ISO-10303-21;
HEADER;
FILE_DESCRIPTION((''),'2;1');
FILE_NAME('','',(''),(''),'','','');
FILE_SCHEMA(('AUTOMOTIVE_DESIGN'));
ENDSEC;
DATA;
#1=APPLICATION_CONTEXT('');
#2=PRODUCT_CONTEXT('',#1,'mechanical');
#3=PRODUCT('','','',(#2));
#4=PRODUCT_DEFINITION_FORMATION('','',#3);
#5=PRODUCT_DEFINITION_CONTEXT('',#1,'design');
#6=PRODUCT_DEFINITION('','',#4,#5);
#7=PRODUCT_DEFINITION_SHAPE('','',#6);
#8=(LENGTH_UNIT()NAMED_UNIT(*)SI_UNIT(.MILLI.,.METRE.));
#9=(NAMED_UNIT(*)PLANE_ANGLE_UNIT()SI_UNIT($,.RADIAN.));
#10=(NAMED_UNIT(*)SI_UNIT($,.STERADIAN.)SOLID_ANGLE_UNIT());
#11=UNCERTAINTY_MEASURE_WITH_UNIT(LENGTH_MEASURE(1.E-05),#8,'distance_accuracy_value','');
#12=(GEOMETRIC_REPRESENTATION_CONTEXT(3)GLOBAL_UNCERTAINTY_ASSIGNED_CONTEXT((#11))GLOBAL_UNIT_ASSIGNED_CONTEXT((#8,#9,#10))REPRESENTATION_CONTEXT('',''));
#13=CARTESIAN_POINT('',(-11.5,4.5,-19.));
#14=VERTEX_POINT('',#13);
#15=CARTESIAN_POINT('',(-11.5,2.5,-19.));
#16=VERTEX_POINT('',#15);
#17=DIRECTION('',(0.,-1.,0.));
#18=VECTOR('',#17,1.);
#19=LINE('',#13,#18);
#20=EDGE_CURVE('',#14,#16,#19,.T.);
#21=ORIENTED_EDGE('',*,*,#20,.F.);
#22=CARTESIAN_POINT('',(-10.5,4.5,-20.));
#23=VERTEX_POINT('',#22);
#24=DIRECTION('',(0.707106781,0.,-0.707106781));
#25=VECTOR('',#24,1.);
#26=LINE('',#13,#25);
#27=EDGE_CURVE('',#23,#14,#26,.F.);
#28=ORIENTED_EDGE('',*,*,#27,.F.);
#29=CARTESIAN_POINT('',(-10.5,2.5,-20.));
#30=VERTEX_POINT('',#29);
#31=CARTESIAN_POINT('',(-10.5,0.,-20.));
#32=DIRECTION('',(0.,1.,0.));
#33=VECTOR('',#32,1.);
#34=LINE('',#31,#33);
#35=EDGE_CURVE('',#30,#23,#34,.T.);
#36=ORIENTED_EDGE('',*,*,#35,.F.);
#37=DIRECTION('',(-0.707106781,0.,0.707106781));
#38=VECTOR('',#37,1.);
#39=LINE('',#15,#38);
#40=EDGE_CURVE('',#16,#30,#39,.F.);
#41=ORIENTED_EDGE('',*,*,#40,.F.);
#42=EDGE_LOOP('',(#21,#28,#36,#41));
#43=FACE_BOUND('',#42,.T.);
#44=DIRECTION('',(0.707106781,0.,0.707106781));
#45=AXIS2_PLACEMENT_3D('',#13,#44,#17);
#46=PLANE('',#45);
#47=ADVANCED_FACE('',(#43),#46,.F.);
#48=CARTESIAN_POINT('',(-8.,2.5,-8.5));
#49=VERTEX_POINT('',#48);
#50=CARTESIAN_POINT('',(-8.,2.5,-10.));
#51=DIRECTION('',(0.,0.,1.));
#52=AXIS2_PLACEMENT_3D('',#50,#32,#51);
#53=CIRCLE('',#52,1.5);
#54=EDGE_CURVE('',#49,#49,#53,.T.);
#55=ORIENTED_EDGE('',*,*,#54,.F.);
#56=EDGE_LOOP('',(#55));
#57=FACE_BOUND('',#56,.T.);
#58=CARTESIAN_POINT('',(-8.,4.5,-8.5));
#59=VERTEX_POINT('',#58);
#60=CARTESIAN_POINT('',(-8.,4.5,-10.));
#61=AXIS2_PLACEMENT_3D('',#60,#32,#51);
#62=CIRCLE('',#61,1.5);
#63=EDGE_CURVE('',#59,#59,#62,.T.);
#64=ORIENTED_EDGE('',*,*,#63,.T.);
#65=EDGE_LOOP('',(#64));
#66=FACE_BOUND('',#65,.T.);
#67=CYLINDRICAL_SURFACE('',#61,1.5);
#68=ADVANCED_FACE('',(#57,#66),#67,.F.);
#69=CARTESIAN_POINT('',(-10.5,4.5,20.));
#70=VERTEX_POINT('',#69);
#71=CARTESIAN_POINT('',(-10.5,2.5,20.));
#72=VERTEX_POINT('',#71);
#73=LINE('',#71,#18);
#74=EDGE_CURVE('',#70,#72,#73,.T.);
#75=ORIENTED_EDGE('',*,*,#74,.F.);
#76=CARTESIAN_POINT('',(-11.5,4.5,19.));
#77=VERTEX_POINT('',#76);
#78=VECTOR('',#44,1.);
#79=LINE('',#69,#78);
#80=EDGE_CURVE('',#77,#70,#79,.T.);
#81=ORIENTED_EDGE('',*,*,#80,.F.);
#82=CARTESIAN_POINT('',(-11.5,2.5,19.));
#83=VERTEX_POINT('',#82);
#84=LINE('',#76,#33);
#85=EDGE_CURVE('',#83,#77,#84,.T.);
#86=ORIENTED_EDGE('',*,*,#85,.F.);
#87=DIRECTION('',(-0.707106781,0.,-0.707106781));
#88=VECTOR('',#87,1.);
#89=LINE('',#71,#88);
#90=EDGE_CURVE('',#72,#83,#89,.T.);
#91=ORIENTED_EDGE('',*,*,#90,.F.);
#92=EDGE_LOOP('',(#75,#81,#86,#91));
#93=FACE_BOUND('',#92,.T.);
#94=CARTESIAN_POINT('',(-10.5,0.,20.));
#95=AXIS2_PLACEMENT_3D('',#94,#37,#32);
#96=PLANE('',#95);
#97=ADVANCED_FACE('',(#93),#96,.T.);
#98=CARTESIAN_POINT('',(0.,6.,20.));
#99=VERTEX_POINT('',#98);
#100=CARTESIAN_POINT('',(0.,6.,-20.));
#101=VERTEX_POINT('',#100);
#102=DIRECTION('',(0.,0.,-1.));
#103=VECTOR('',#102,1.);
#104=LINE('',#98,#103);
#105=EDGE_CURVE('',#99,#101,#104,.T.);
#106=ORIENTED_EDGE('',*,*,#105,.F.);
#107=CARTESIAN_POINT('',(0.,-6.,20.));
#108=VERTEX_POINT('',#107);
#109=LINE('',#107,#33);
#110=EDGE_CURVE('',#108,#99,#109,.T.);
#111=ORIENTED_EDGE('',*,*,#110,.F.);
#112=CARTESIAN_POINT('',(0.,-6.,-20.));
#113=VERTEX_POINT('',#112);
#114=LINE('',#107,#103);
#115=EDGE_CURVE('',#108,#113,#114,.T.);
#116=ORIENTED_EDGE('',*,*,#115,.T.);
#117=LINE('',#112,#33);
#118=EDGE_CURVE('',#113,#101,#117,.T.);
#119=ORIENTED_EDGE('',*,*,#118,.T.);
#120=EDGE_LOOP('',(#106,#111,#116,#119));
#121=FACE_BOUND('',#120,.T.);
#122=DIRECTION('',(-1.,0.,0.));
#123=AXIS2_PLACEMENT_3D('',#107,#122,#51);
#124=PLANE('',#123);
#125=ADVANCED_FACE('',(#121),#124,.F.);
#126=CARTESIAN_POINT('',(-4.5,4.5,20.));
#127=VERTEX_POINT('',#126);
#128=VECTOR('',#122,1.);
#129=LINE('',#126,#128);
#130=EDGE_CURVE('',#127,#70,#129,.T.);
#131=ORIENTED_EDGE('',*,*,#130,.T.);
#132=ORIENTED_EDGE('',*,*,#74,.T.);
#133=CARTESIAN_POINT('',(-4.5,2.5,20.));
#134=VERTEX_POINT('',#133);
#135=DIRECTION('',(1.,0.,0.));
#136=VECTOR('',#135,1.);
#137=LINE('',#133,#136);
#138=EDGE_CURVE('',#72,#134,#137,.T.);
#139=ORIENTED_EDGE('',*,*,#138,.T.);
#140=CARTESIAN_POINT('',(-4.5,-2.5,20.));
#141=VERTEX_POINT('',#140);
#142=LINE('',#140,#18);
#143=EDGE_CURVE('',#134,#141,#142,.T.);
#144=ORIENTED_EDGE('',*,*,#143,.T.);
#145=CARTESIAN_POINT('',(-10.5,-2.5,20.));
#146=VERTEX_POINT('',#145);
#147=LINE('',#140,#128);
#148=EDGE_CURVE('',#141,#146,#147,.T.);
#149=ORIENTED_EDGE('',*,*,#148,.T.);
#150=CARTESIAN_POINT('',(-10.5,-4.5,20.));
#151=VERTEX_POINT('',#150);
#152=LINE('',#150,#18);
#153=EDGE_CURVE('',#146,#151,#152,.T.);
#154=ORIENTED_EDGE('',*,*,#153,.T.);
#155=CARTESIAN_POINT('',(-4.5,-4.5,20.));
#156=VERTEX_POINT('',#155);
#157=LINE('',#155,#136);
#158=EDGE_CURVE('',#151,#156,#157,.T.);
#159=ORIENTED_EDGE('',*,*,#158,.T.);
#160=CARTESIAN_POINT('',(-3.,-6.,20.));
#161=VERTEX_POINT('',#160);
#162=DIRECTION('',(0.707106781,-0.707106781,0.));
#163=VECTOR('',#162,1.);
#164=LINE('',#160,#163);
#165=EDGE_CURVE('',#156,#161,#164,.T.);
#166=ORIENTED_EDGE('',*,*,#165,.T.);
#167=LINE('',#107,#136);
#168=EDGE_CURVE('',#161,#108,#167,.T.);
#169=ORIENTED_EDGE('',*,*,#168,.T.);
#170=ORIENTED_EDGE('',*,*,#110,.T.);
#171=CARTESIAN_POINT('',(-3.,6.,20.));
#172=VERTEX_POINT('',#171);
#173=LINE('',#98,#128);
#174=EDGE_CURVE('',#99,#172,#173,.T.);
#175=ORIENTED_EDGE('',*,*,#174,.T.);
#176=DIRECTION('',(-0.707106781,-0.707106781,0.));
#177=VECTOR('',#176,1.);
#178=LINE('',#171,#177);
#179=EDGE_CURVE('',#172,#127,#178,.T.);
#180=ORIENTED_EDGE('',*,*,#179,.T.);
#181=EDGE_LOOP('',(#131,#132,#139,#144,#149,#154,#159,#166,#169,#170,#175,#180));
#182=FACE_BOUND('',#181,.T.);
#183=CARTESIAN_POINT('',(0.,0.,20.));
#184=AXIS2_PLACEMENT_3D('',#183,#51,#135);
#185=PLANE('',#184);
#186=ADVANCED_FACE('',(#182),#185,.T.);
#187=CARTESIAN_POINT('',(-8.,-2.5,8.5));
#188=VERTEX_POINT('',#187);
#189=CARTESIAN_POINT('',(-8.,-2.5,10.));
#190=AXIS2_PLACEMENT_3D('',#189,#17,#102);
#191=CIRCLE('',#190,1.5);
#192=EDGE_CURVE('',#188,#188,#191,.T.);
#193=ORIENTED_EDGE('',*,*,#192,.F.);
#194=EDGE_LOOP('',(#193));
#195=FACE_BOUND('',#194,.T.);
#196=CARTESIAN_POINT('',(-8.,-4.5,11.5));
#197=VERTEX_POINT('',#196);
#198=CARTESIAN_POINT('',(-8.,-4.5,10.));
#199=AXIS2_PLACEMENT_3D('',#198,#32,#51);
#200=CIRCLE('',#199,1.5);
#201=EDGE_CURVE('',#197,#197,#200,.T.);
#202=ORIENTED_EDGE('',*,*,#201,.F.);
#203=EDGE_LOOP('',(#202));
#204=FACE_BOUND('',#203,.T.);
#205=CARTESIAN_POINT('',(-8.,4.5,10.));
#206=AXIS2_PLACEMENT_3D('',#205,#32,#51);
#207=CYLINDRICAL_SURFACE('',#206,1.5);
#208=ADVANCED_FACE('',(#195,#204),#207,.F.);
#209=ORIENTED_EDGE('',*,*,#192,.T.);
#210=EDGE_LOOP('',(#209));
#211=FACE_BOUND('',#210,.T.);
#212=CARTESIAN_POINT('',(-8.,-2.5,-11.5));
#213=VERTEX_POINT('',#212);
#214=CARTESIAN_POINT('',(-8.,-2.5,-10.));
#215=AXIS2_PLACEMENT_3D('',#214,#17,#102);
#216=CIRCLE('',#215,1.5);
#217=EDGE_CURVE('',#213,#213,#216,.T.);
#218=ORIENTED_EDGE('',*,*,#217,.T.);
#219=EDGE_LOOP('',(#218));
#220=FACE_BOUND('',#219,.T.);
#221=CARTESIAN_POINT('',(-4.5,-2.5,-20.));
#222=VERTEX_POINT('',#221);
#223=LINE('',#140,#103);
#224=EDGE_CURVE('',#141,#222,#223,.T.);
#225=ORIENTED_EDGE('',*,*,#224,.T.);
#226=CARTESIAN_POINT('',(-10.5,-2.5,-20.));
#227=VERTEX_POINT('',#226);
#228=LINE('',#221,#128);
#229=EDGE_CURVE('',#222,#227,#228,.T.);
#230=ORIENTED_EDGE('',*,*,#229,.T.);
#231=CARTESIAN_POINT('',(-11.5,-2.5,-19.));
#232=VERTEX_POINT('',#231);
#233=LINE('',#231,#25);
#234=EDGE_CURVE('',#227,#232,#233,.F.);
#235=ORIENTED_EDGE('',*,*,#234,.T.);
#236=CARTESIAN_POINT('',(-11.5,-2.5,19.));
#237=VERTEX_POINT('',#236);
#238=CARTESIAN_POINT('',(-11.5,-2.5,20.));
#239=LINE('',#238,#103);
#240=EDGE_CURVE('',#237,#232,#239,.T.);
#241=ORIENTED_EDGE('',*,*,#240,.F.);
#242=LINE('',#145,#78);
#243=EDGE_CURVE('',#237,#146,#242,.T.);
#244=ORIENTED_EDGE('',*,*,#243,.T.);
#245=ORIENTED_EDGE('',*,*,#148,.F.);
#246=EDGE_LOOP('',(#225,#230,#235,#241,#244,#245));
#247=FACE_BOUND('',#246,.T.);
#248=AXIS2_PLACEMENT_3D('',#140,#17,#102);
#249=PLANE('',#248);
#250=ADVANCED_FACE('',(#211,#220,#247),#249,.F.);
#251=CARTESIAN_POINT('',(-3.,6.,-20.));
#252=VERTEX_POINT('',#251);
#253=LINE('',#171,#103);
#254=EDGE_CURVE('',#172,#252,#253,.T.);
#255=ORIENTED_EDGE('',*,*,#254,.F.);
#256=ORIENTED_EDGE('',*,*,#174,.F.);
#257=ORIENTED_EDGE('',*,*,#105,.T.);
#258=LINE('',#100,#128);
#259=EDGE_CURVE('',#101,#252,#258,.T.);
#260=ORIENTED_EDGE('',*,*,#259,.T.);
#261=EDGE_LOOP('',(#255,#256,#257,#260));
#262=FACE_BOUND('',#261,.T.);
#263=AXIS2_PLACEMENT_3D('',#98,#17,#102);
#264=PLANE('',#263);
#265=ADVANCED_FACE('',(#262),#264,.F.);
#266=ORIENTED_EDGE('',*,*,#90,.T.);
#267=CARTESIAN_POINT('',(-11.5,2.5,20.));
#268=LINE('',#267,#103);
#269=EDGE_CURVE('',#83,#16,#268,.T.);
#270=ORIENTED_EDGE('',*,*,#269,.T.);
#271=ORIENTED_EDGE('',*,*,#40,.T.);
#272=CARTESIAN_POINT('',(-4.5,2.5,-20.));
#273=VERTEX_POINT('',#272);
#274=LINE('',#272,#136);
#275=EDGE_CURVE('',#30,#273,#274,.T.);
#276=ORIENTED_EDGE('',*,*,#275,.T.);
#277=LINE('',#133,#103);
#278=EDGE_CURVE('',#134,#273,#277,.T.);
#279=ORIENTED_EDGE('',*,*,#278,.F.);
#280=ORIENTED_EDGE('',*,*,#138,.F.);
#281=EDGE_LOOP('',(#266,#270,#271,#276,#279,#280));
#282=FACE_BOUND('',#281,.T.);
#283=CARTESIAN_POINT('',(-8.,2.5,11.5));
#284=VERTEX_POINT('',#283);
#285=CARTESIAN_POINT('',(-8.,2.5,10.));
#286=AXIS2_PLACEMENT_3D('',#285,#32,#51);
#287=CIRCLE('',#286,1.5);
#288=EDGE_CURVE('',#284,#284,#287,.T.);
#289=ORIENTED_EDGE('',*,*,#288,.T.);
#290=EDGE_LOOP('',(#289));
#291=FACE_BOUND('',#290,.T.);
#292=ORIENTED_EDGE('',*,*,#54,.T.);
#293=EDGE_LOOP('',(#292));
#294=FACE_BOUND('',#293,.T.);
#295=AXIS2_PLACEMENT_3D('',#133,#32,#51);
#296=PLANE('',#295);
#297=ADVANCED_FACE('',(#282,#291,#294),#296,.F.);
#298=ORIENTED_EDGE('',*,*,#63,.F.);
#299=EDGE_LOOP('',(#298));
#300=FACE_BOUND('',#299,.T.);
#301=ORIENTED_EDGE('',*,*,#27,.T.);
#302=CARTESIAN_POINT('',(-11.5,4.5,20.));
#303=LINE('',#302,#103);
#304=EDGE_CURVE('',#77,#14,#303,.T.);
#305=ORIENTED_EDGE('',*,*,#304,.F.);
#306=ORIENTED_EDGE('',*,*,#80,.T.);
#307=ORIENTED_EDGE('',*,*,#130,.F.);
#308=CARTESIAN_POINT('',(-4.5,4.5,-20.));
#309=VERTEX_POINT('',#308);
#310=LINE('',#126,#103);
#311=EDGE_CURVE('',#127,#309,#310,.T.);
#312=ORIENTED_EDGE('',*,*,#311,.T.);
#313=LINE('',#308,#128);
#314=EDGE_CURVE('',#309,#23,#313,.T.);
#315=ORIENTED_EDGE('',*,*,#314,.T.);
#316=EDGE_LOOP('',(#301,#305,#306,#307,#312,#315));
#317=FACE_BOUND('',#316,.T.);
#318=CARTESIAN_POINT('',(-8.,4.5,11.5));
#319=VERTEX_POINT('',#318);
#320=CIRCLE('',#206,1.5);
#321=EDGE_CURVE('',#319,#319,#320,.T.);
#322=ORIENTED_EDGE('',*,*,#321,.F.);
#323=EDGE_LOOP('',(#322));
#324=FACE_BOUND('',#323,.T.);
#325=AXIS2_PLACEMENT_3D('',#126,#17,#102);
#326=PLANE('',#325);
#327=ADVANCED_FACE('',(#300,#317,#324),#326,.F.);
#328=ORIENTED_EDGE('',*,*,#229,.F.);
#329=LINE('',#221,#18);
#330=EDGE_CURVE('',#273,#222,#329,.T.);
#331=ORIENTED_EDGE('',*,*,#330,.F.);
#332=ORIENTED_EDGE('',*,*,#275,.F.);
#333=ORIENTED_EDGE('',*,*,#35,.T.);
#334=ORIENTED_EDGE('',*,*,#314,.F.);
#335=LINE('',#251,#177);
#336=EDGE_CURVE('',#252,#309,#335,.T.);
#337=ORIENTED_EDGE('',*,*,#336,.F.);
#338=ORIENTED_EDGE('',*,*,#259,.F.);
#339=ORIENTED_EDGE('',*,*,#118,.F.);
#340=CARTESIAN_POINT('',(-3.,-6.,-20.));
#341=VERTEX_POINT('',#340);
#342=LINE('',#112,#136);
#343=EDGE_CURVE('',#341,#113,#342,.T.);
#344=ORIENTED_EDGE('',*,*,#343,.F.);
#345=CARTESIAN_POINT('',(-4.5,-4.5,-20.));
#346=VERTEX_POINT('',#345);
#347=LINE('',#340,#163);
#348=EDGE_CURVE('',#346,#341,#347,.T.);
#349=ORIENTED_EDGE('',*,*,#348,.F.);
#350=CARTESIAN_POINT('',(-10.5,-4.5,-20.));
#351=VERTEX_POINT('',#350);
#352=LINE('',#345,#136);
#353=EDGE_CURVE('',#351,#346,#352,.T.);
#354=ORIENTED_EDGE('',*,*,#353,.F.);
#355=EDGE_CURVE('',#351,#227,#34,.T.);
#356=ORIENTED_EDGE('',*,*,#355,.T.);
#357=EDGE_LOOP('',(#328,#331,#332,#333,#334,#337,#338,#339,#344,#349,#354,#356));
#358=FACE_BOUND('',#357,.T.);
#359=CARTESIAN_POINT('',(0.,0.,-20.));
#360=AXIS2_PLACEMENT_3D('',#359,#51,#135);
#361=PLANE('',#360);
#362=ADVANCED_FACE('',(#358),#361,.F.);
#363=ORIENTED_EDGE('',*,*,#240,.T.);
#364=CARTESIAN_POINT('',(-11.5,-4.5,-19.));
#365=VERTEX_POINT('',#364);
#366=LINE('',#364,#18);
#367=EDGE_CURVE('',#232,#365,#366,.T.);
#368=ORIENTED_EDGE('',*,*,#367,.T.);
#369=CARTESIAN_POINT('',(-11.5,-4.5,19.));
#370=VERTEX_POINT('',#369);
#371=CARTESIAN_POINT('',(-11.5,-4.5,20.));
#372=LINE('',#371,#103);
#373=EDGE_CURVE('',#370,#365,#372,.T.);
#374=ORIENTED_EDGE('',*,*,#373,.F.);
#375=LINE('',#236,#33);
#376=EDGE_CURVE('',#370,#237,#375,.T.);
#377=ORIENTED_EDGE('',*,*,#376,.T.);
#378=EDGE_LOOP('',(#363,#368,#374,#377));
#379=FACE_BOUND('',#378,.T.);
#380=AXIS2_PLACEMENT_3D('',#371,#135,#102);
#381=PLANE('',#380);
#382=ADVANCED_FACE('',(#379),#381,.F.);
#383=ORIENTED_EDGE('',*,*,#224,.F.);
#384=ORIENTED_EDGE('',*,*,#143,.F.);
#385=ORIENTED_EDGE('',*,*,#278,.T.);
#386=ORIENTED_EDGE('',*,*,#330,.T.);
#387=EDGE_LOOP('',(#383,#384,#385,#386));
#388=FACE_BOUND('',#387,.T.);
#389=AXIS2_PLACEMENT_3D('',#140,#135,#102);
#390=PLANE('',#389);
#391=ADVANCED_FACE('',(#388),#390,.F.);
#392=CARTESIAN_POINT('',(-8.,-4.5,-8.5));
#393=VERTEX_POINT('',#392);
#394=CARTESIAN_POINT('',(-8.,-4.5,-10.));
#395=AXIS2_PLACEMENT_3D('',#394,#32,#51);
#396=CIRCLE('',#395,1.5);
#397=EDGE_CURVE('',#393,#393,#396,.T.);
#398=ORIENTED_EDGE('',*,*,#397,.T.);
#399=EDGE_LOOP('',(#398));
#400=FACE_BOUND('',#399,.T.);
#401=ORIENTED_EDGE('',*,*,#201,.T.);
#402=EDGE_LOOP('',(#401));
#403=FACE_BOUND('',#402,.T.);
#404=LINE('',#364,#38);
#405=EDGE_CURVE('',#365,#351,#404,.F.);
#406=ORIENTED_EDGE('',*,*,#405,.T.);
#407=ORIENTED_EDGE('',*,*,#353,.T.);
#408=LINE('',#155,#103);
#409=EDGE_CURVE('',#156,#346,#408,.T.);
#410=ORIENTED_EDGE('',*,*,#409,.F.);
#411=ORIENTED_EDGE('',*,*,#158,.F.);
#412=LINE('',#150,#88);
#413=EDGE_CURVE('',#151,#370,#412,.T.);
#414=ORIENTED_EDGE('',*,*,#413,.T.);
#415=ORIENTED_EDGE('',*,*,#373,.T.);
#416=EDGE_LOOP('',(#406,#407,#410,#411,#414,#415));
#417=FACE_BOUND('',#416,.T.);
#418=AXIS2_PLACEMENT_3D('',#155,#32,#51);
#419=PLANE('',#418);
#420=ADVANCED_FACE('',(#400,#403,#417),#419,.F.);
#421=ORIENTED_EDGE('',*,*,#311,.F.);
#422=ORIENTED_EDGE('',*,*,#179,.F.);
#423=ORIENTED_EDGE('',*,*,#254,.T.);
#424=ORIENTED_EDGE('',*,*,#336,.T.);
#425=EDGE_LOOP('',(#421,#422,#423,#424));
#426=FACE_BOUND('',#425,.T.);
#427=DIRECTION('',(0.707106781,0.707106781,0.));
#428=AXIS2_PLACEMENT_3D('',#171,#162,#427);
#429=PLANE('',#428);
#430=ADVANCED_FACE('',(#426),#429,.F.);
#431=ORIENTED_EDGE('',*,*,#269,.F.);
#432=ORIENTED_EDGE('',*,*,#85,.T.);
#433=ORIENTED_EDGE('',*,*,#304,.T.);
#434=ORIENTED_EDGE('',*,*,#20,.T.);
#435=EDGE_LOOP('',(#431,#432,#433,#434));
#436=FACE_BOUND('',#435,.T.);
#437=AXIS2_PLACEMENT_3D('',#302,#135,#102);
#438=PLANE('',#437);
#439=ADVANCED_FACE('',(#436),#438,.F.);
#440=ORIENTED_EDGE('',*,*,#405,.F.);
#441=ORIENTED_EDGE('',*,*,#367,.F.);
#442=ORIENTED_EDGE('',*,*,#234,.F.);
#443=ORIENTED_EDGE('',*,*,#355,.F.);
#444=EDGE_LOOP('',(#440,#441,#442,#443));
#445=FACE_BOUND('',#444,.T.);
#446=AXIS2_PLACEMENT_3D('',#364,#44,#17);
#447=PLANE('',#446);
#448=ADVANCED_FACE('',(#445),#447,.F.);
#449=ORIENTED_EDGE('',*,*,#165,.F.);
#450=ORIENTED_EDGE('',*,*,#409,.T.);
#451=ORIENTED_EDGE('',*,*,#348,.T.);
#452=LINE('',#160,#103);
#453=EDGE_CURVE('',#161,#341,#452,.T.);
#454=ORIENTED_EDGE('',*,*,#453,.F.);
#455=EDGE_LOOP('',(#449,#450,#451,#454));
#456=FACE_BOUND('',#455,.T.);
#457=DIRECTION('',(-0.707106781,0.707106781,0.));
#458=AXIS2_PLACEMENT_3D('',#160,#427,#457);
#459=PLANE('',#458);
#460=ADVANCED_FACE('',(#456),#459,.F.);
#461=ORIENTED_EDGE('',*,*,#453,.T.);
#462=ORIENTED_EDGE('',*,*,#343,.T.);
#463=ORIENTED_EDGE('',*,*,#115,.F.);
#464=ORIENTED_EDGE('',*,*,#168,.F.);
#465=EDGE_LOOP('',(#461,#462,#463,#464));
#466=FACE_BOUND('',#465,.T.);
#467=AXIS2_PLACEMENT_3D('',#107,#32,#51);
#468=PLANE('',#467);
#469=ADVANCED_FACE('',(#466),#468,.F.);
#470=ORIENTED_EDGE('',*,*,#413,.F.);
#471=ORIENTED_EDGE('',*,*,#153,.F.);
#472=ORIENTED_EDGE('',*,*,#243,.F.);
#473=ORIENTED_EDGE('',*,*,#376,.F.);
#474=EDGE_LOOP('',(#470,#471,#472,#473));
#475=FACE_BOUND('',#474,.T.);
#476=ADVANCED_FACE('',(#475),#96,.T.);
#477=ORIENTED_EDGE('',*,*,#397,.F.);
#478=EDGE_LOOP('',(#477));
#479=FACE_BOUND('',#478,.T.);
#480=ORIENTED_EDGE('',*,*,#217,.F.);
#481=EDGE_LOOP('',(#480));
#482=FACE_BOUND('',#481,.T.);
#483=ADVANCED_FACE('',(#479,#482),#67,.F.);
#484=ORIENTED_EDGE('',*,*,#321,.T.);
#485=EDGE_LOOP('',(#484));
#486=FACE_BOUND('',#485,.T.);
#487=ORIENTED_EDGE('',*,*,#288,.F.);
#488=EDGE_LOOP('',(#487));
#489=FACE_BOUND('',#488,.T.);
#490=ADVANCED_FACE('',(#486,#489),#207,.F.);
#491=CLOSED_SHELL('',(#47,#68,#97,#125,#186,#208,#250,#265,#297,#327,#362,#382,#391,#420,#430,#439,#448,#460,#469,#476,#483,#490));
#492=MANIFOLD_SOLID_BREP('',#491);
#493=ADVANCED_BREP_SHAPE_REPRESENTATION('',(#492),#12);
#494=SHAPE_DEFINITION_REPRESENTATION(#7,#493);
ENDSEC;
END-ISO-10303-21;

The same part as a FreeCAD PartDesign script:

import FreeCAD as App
import Part
import Sketcher
from FreeCAD import Vector


def edges_at(feature, points):
    """Names of the edges that pass closest to the given points."""
    edges = feature.Shape.Edges
    near = lambda p: min(range(len(edges)), key=lambda i: edges[i].distToShape(Part.Vertex(*p))[0])
    return sorted({f"Edge{near(p) + 1}" for p in points})


def add_polygon(sketch, points):
    """Adds a closed chain of lines whose ends are joined by coincident constraints."""
    first, n = sketch.GeometryCount, len(points)
    for a, b in zip(points, points[1:] + points[:1]):
        sketch.addGeometry(Part.LineSegment(App.Vector(*a, 0), App.Vector(*b, 0)), False)
    for i in range(n):
        sketch.addConstraint(Sketcher.Constraint("Coincident", first + i, 2, first + (i + 1) % n, 1))

doc = App.newDocument("Part")
body = doc.addObject("PartDesign::Body", "Body")

# Sketch on XY plane
sketch1 = body.newObject("Sketcher::SketchObject", "Sketch")
sketch1.AttachmentSupport = (doc.getObject("XY_Plane"), [""])
sketch1.MapMode = "FlatFace"
add_polygon(sketch1, [(0, -6), (0, 6), (-3, 6), (-4.5, 4.5), (-11.5, 4.5), (-11.5, 2.5), (-4.5, 2.5), (-4.5, -2.5), (-11.5, -2.5), (-11.5, -4.5), (-4.5, -4.5), (-3, -6)])  # lines 0-11
sketch1.addConstraint(Sketcher.Constraint("Vertical", 0))
sketch1.addConstraint(Sketcher.Constraint("Horizontal", 1))
sketch1.addConstraint(Sketcher.Constraint("Horizontal", 3))
sketch1.addConstraint(Sketcher.Constraint("Vertical", 4))
sketch1.addConstraint(Sketcher.Constraint("Horizontal", 5))
sketch1.addConstraint(Sketcher.Constraint("Vertical", 6))
sketch1.addConstraint(Sketcher.Constraint("Horizontal", 7))
sketch1.addConstraint(Sketcher.Constraint("Vertical", 8))
sketch1.addConstraint(Sketcher.Constraint("Horizontal", 9))
sketch1.addConstraint(Sketcher.Constraint("Horizontal", 11))
sketch1.addConstraint(Sketcher.Constraint("Symmetric", 0, 2, 11, 2, -1, 1))
sketch1.addConstraint(Sketcher.Constraint("Symmetric", 4, 2, 7, 2, -1))
sketch1.addConstraint(Sketcher.Constraint("Symmetric", 2, 2, 9, 2, -1))
sketch1.addConstraint(Sketcher.Constraint("Perpendicular", 2, 10))
sketch1.addConstraint(Sketcher.Constraint("Vertical", 2, 2, 5, 2))
sketch1.addConstraint(Sketcher.Constraint("Vertical", 1, 2, 10, 2))
sketch1.addConstraint(Sketcher.Constraint("DistanceX", 1, 2, 1, 1, 3.0))
sketch1.addConstraint(Sketcher.Constraint("DistanceX", 3, 2, 3, 1, 7.0))
sketch1.addConstraint(Sketcher.Constraint("DistanceY", 0, 1, 0, 2, 12.0))
sketch1.addConstraint(Sketcher.Constraint("DistanceY", 4, 2, 4, 1, 2.0))
sketch1.addConstraint(Sketcher.Constraint("DistanceY", 6, 2, 6, 1, 5.0))
pad1 = body.newObject("PartDesign::Pad", "Pad")
pad1.Profile = sketch1
pad1.Length = 40
pad1.Midplane = True

# Sketch on XZ plane
sketch2 = body.newObject("Sketcher::SketchObject", "Sketch001")
sketch2.AttachmentSupport = (doc.getObject("XZ_Plane"), [""])
sketch2.MapMode = "FlatFace"
sketch2.AttachmentOffset = App.Placement(Vector(0, 0, -4.5), App.Rotation())
sketch2.addGeometry(Part.Circle(Vector(-8, -10, 0), Vector(0, 0, 1), 1.5), False)
sketch2.addGeometry(Part.Circle(Vector(-8, 10, 0), Vector(0, 0, 1), 1.5), False)
sketch2.addConstraint(Sketcher.Constraint("Equal", 0, 1))
sketch2.addConstraint(Sketcher.Constraint("Symmetric", 0, 3, 1, 3, -1))
sketch2.addConstraint(Sketcher.Constraint("Diameter", 0, 3.0))
sketch2.addConstraint(Sketcher.Constraint("DistanceX", 0, 3, -1, 1, 8.0))
sketch2.addConstraint(Sketcher.Constraint("DistanceY", 0, 3, -1, 1, 10.0))
doc.recompute()
hole = body.newObject("PartDesign::Hole", "Hole")
hole.Profile = sketch2
hole.ThreadType = "None"
hole.Diameter = 3
hole.DepthType = "ThroughAll"
hole.Reversed = True
doc.recompute()

chamfer = body.newObject("PartDesign::Chamfer", "Chamfer")
chamfer.Base = (hole, edges_at(hole, [
    (-11.5, -3.5, -20),
    (-11.5, 3.5, -20),
    (-11.5, 3.5, 20),
    (-11.5, -3.5, 20),
]))
chamfer.Size = 1

doc.recompute()
